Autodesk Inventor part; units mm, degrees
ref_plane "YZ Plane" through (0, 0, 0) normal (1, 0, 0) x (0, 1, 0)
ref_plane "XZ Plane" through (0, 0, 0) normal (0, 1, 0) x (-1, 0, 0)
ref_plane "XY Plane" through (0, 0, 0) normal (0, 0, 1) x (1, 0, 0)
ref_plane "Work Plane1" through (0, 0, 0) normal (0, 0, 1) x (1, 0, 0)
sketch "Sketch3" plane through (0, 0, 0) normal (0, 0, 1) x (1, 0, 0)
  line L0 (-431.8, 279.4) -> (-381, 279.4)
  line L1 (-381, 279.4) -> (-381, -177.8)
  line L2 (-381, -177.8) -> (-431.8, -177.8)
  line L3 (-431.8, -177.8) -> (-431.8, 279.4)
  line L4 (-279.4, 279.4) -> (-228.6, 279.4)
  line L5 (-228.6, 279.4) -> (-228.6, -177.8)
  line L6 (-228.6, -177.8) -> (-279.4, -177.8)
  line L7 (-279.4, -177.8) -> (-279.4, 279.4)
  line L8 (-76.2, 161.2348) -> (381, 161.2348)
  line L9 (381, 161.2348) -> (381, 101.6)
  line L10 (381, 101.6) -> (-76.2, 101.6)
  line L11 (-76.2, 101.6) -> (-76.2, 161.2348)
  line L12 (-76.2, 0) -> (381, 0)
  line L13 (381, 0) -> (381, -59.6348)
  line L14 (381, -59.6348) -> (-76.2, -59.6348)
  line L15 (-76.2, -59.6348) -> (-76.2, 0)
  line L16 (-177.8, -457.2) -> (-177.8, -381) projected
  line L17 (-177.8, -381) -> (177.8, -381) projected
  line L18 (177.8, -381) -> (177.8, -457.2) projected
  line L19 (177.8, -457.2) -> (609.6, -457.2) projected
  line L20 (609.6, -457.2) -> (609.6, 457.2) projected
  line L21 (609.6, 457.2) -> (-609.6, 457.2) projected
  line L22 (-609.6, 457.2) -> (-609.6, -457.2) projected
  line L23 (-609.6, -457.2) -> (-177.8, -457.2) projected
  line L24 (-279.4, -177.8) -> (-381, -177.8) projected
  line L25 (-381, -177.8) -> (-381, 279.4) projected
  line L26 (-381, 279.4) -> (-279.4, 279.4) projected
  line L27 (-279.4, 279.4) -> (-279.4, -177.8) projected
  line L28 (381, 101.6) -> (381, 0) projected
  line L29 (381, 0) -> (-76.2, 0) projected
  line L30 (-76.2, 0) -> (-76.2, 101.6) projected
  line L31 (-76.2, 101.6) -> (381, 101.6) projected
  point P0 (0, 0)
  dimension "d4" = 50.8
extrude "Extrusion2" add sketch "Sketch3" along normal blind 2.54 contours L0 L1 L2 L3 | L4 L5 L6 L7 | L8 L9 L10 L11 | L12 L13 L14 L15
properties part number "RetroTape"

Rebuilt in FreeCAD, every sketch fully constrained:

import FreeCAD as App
import Part
import Sketcher
Q = App.Units.Quantity

doc = App.newDocument("Part")
body = doc.addObject("PartDesign::Body", "Body")
body.AllowCompound = True

# Sketch on XY plane
sketch1 = body.newObject("Sketcher::SketchObject", "Sketch")
sketch1.AttachmentSupport = (doc.getObject("XY_Plane"), [""])
sketch1.MapMode = "FlatFace"
sketch1.addGeometry(Part.LineSegment(App.Vector(-381, 279, 0), App.Vector(-432, 279, 0)), False)
sketch1.addGeometry(Part.LineSegment(App.Vector(-432, 279, 0), App.Vector(-432, -178, 0)), False)
sketch1.addGeometry(Part.LineSegment(App.Vector(-432, -178, 0), App.Vector(-381, -178, 0)), False)
sketch1.addGeometry(Part.LineSegment(App.Vector(-381, -178, 0), App.Vector(-381, 279, 0)), False)
sketch1.addGeometry(Part.LineSegment(App.Vector(-229, 279, 0), App.Vector(-279, 279, 0)), False)
sketch1.addGeometry(Part.LineSegment(App.Vector(-279, 279, 0), App.Vector(-279, -178, 0)), False)
sketch1.addGeometry(Part.LineSegment(App.Vector(-279, -178, 0), App.Vector(-229, -178, 0)), False)
sketch1.addGeometry(Part.LineSegment(App.Vector(-229, -178, 0), App.Vector(-229, 279, 0)), False)
sketch1.addGeometry(Part.LineSegment(App.Vector(381, 161, 0), App.Vector(-76, 161, 0)), False)
sketch1.addGeometry(Part.LineSegment(App.Vector(-76, 161, 0), App.Vector(-76, 102, 0)), False)
sketch1.addGeometry(Part.LineSegment(App.Vector(-76, 102, 0), App.Vector(381, 102, 0)), False)
sketch1.addGeometry(Part.LineSegment(App.Vector(381, 102, 0), App.Vector(381, 161, 0)), False)
sketch1.addGeometry(Part.LineSegment(App.Vector(381, 0, 0), App.Vector(-76, 0, 0)), False)
sketch1.addGeometry(Part.LineSegment(App.Vector(-76, 0, 0), App.Vector(-76, -60, 0)), False)
sketch1.addGeometry(Part.LineSegment(App.Vector(-76, -60, 0), App.Vector(381, -60, 0)), False)
sketch1.addGeometry(Part.LineSegment(App.Vector(381, -60, 0), App.Vector(381, 0, 0)), False)
sketch1.addConstraint(Sketcher.Constraint("Coincident", 0, 2, 1, 1))
sketch1.addConstraint(Sketcher.Constraint("Coincident", 1, 2, 2, 1))
sketch1.addConstraint(Sketcher.Constraint("Coincident", 2, 2, 3, 1))
sketch1.addConstraint(Sketcher.Constraint("Coincident", 3, 2, 0, 1))
sketch1.addConstraint(Sketcher.Constraint("Coincident", 4, 2, 5, 1))
sketch1.addConstraint(Sketcher.Constraint("Coincident", 5, 2, 6, 1))
sketch1.addConstraint(Sketcher.Constraint("Coincident", 6, 2, 7, 1))
sketch1.addConstraint(Sketcher.Constraint("Coincident", 7, 2, 4, 1))
sketch1.addConstraint(Sketcher.Constraint("Coincident", 8, 2, 9, 1))
sketch1.addConstraint(Sketcher.Constraint("Coincident", 9, 2, 10, 1))
sketch1.addConstraint(Sketcher.Constraint("Coincident", 10, 2, 11, 1))
sketch1.addConstraint(Sketcher.Constraint("Coincident", 11, 2, 8, 1))
sketch1.addConstraint(Sketcher.Constraint("Coincident", 12, 2, 13, 1))
sketch1.addConstraint(Sketcher.Constraint("Coincident", 13, 2, 14, 1))
sketch1.addConstraint(Sketcher.Constraint("Coincident", 14, 2, 15, 1))
sketch1.addConstraint(Sketcher.Constraint("Coincident", 15, 2, 12, 1))
sketch1.addConstraint(Sketcher.Constraint("Horizontal", 0))
sketch1.addConstraint(Sketcher.Constraint("Vertical", 1))
sketch1.addConstraint(Sketcher.Constraint("Horizontal", 2))
sketch1.addConstraint(Sketcher.Constraint("Vertical", 3))
sketch1.addConstraint(Sketcher.Constraint("Horizontal", 4))
sketch1.addConstraint(Sketcher.Constraint("Vertical", 5))
sketch1.addConstraint(Sketcher.Constraint("Horizontal", 6))
sketch1.addConstraint(Sketcher.Constraint("Vertical", 7))
sketch1.addConstraint(Sketcher.Constraint("Horizontal", 8))
sketch1.addConstraint(Sketcher.Constraint("Vertical", 9))
sketch1.addConstraint(Sketcher.Constraint("Horizontal", 10))
sketch1.addConstraint(Sketcher.Constraint("Vertical", 11))
sketch1.addConstraint(Sketcher.Constraint("Horizontal", 12))
sketch1.addConstraint(Sketcher.Constraint("Vertical", 13))
sketch1.addConstraint(Sketcher.Constraint("Horizontal", 14))
sketch1.addConstraint(Sketcher.Constraint("Vertical", 15))
sketch1.addConstraint(Sketcher.Constraint("PointOnObject", 12, 2, -1))
sketch1.addConstraint(Sketcher.Constraint("Horizontal", 3, 2, 4, 2))
sketch1.addConstraint(Sketcher.Constraint("Horizontal", 2, 2, 5, 2))
sketch1.addConstraint(Sketcher.Constraint("Vertical", 9, 2, 12, 2))
sketch1.addConstraint(Sketcher.Constraint("Vertical", 11, 2, 14, 2))
sketch1.addConstraint(Sketcher.Constraint("Equal", 2, 4))
sketch1.addConstraint(Sketcher.Constraint("Equal", 14, 1))
sketch1.addConstraint(Sketcher.Constraint("Equal", 11, 13))
sketch1.addConstraint(Sketcher.Constraint("DistanceX", 0, 2, 0, 1, Q("2 in")))
sketch1.addConstraint(Sketcher.Constraint("DistanceX", 8, 2, 8, 1, Q("18 in")))
sketch1.addConstraint(Sketcher.Constraint("DistanceX", 0, 2, -1, 1, Q("17 in")))
sketch1.addConstraint(Sketcher.Constraint("DistanceY", -1, 1, 0, 2, Q("11 in")))
sketch1.addConstraint(Sketcher.Constraint("DistanceX", 4, 2, -1, 1, Q("11 in")))
sketch1.addConstraint(Sketcher.Constraint("DistanceX", 8, 2, -1, 1, Q("3 in")))
sketch1.addConstraint(Sketcher.Constraint("DistanceY", -1, 1, 9, 2, Q("4 in")))
sketch1.addConstraint(Sketcher.Constraint("DistanceY", 9, 2, 9, 1, 59.6348))
pad1 = body.newObject("PartDesign::Pad", "Pad")
pad1.Profile = sketch1
pad1.Length = Q("0.1 in")

doc.recompute()
